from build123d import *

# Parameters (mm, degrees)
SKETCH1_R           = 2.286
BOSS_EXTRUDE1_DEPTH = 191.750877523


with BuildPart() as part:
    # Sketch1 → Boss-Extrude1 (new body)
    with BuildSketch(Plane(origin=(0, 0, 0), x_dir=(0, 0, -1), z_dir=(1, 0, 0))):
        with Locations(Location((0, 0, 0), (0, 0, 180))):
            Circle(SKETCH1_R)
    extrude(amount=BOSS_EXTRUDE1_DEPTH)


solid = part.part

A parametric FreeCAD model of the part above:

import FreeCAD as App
import Part
import Sketcher
from FreeCAD import Vector
Q = App.Units.Quantity

doc = App.newDocument("Part")
params = doc.addObject("Spreadsheet::Sheet", "Params")
for row, (alias, value) in enumerate([
    ("sketch1_diameter", "0.18 in"),
    ("pad1_length", "191.750878 mm"),
], start=1):
    params.set(f"A{row}", alias)
    params.set(f"B{row}", "=" + value)
    params.setAlias(f"B{row}", alias)

body = doc.addObject("PartDesign::Body", "Body")

# Sketch on YZ plane
sketch1 = doc.addObject("Sketcher::SketchObject", "Sketch")
body.addObject(sketch1)
sketch1.AttachmentSupport = (doc.YZ_Plane, [""])
sketch1.MapMode = "FlatFace"
sketch1.addGeometry(Part.Circle(Vector(0, 0, 0), Vector(0, 0, 1), 2.286), False)
sketch1.addConstraint(Sketcher.Constraint("Coincident", 0, 3, -1, 1))
sketch1.addConstraint(Sketcher.Constraint("Diameter", 0, Q("0.18 in")))
sketch1.setExpression("Constraints[1]", "Params.sketch1_diameter")
pad1 = doc.addObject("PartDesign::Pad", "Pad")
body.addObject(pad1)
pad1.Profile = sketch1
pad1.setExpression("Length", "Params.pad1_length")

doc.recompute()
